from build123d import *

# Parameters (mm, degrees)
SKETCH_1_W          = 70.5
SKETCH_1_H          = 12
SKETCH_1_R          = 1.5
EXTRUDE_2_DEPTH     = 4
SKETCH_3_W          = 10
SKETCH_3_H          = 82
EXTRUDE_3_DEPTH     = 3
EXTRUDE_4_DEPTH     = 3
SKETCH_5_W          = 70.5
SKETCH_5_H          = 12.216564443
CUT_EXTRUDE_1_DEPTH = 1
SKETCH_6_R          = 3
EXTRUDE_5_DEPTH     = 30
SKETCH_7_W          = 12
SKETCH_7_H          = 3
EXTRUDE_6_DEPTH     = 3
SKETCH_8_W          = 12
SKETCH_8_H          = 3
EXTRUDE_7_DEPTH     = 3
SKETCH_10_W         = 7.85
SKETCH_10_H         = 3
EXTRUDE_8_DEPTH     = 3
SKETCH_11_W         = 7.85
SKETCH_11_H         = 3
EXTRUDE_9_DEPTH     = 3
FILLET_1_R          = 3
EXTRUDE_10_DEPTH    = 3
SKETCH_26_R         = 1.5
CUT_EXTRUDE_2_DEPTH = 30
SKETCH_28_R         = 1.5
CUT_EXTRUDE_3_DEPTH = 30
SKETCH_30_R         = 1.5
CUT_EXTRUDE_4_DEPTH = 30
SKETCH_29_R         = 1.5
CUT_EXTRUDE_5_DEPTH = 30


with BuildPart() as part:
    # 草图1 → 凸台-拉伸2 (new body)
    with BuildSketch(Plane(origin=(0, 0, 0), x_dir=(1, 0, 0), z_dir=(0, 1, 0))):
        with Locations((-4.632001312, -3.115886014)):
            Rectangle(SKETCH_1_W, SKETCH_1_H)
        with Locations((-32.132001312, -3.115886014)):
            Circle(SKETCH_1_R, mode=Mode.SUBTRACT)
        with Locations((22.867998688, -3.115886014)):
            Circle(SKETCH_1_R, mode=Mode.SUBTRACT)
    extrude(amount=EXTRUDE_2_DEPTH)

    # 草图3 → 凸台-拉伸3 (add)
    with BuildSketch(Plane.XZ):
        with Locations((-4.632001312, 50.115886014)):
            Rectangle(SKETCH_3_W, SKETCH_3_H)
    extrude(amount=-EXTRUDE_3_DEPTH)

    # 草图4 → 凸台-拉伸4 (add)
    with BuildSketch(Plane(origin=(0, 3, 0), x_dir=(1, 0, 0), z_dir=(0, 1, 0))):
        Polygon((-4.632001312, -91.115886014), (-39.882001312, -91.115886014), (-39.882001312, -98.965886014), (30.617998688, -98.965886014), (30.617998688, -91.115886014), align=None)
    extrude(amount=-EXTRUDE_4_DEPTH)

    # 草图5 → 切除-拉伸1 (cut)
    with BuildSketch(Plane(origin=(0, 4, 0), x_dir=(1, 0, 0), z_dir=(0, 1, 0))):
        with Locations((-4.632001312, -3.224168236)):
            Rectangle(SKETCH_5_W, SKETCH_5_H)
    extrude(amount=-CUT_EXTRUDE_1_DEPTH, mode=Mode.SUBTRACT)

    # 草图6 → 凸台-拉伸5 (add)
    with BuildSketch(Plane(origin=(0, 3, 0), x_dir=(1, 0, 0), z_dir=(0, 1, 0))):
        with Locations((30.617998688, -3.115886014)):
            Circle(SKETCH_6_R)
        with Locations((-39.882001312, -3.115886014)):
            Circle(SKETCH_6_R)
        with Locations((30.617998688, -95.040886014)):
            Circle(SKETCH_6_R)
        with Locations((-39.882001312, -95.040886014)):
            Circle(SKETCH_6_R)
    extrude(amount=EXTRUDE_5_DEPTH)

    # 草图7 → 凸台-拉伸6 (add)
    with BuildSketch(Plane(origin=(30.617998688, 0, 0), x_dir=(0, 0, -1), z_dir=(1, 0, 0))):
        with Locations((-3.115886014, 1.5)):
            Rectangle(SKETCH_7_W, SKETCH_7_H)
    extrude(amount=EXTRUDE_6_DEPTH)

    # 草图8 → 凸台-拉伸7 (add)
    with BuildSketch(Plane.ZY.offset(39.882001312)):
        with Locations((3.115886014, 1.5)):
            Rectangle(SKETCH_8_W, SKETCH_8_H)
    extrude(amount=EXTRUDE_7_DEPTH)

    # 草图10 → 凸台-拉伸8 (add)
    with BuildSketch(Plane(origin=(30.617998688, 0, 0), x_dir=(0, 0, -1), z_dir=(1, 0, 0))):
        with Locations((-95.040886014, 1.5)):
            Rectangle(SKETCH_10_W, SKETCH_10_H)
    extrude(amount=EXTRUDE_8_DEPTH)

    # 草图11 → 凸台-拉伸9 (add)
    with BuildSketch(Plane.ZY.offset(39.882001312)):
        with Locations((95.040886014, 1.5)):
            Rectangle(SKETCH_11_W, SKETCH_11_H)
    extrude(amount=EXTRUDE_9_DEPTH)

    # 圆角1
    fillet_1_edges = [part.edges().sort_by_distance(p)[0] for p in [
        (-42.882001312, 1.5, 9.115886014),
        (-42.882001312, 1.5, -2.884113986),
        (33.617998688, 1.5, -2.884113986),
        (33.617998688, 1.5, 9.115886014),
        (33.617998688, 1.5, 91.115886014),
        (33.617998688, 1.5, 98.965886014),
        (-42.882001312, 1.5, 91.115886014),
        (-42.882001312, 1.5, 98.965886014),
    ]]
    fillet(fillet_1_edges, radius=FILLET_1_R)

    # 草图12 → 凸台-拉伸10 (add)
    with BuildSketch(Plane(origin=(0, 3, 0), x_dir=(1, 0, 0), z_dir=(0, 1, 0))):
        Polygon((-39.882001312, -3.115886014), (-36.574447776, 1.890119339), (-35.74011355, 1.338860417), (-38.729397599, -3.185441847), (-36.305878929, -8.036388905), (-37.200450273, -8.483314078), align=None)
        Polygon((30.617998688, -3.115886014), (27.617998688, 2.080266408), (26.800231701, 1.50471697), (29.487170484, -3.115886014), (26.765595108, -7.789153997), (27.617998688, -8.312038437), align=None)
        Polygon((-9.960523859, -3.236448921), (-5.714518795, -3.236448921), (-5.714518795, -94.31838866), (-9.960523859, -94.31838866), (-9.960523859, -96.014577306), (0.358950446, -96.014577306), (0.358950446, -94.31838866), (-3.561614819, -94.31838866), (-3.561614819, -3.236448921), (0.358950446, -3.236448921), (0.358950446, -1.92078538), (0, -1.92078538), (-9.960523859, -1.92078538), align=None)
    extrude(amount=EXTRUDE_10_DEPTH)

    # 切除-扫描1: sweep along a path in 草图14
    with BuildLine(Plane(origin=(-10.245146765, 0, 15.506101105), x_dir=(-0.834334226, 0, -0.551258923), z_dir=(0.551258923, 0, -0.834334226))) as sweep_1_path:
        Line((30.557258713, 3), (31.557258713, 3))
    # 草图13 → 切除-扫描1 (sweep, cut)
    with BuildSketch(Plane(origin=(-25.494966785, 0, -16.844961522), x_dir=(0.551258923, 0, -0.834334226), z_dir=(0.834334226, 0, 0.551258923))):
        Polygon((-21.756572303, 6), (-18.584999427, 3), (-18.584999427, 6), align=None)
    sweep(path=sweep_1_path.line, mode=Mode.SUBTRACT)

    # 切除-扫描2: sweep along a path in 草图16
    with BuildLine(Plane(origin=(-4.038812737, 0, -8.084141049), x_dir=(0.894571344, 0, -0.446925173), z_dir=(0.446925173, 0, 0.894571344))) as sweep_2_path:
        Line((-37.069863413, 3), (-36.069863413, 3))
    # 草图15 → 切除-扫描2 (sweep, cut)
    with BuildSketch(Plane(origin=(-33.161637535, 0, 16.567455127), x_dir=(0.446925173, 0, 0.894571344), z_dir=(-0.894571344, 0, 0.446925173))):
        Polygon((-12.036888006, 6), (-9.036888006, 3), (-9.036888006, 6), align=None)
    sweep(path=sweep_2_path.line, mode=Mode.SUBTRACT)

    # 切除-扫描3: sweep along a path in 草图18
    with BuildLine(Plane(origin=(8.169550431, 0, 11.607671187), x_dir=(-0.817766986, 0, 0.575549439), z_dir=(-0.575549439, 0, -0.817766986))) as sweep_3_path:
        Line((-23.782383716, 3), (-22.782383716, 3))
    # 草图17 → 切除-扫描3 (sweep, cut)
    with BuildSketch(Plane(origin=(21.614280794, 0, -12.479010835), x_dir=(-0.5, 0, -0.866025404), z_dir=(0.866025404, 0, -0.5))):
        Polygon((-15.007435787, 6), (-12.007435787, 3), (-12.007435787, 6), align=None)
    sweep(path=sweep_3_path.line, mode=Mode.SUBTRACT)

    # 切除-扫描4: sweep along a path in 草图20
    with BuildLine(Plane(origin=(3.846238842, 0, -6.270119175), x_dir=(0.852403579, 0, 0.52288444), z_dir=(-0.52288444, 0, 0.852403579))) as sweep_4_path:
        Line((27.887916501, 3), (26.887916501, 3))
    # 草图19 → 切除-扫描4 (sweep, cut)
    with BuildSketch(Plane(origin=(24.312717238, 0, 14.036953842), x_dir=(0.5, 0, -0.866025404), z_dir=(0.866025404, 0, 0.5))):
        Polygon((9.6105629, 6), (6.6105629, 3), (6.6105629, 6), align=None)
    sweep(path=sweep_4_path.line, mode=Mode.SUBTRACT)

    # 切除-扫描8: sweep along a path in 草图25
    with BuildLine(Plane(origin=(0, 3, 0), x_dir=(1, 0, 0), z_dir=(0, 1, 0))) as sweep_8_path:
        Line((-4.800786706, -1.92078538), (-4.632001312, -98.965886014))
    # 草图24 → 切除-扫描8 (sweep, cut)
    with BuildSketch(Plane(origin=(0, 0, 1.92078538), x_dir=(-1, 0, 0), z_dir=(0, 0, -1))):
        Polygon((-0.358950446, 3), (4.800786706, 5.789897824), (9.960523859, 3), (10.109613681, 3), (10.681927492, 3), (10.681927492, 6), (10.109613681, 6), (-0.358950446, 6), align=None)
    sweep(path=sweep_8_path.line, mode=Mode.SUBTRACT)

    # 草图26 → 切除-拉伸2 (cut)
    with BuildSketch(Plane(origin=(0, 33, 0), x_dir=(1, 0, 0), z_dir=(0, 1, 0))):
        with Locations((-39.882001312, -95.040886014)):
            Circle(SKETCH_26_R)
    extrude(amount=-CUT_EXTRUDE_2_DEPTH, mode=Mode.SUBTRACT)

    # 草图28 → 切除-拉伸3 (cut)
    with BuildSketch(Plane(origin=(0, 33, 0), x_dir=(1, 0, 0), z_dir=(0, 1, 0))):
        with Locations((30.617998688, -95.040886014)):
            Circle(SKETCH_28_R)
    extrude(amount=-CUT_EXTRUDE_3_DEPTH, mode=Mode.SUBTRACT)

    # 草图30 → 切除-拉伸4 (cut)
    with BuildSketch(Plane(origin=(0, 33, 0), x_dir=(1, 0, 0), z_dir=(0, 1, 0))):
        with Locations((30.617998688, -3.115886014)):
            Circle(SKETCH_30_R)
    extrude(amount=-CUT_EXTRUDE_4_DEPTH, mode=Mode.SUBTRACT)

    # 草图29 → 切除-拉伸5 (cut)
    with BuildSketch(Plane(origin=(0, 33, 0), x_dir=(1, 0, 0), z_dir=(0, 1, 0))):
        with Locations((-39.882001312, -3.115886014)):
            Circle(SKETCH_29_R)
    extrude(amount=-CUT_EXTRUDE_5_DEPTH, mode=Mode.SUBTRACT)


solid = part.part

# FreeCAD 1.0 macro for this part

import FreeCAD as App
import Part
import Sketcher
Q = App.Units.Quantity


def edges_at(feature, points):
    """Names of the edges that pass closest to the given points."""
    edges = feature.Shape.Edges
    near = lambda p: min(range(len(edges)), key=lambda i: edges[i].distToShape(Part.Vertex(*p))[0])
    return sorted({f"Edge{near(p) + 1}" for p in points})


def add_polygon(sketch, points):
    """Adds a closed chain of lines whose ends are joined by coincident constraints."""
    first, n = sketch.GeometryCount, len(points)
    for a, b in zip(points, points[1:] + points[:1]):
        sketch.addGeometry(Part.LineSegment(App.Vector(*a, 0), App.Vector(*b, 0)), False)
    for i in range(n):
        sketch.addConstraint(Sketcher.Constraint("Coincident", first + i, 2, first + (i + 1) % n, 1))

doc = App.newDocument("Part")
body = doc.addObject("PartDesign::Body", "Body")

sketch1 = doc.addObject("Sketcher::SketchObject", "Sketch")
body.addObject(sketch1)
sketch1.AttachmentSupport = (doc.XZ_Plane, [""])
sketch1.MapMode = "FlatFace"
add_polygon(sketch1, [(-39.882001, -2.884114), (-39.882001, 9.115886), (30.617999, 9.115886), (30.617999, -2.884114)])
sketch1.addGeometry(Part.Circle(App.Vector(-32.132001, 3.115886, 0), App.Vector(0, 0, 1), 1.5), False)
sketch1.addGeometry(Part.Circle(App.Vector(22.867999, 3.115886, 0), App.Vector(0, 0, 1), 1.5), False)
sketch1.addConstraint(Sketcher.Constraint("Vertical", 0))
sketch1.addConstraint(Sketcher.Constraint("Horizontal", 1))
sketch1.addConstraint(Sketcher.Constraint("Vertical", 2))
sketch1.addConstraint(Sketcher.Constraint("Horizontal", 3))
sketch1.addConstraint(Sketcher.Constraint("Equal", 4, 5))
sketch1.addConstraint(Sketcher.Constraint("Horizontal", 4, 3, 5, 3))
sketch1.addConstraint(Sketcher.Constraint("Diameter", 4, 3.0))
sketch1.addConstraint(Sketcher.Constraint("DistanceY", 0, 1, 0, 2, 12.0))
sketch1.addConstraint(Sketcher.Constraint("DistanceX", 1, 1, 1, 2, 70.5))
sketch1.addConstraint(Sketcher.Constraint("DistanceX", 4, 3, 5, 3, 55.0))
sketch1.addConstraint(Sketcher.Constraint("DistanceY", 4, 3, 0, 2, 6.0))
sketch1.addConstraint(Sketcher.Constraint("DistanceX", 0, 2, 4, 3, 7.75))
sketch1.addConstraint(Sketcher.Constraint("DistanceX", 4, 3, -1, 1, 32.132001))
sketch1.addConstraint(Sketcher.Constraint("DistanceY", -1, 1, 4, 3, 3.115886))
pad1 = doc.addObject("PartDesign::Pad", "Pad")
body.addObject(pad1)
pad1.Profile = sketch1
pad1.Length = 4
pad1.Reversed = True

sketch2 = doc.addObject("Sketcher::SketchObject", "Sketch001")
body.addObject(sketch2)
sketch2.AttachmentSupport = (doc.XZ_Plane, [""])
sketch2.MapMode = "FlatFace"
add_polygon(sketch2, [(-9.632001, 91.115886), (-9.632001, 9.115886), (0.367999, 9.115886), (0.367999, 91.115886)])
sketch2.addConstraint(Sketcher.Constraint("Vertical", 0))
sketch2.addConstraint(Sketcher.Constraint("Horizontal", 1))
sketch2.addConstraint(Sketcher.Constraint("Vertical", 2))
sketch2.addConstraint(Sketcher.Constraint("Horizontal", 3))
sketch2.addConstraint(Sketcher.Constraint("DistanceX", 1, 1, 1, 2, 10.0))
sketch2.addConstraint(Sketcher.Constraint("DistanceY", 0, 2, 0, 1, 82.0))
sketch2.addConstraint(Sketcher.Constraint("DistanceX", 0, 2, -1, 1, 9.632001))
sketch2.addConstraint(Sketcher.Constraint("DistanceY", -1, 1, 0, 2, 9.115886))
pad2 = doc.addObject("PartDesign::Pad", "Pad001")
body.addObject(pad2)
pad2.Profile = sketch2
pad2.Length = 3
pad2.Reversed = True

sketch3 = doc.addObject("Sketcher::SketchObject", "Sketch002")
body.addObject(sketch3)
sketch3.AttachmentSupport = (doc.XZ_Plane, [""])
sketch3.MapMode = "FlatFace"
sketch3.AttachmentOffset = App.Placement(App.Vector(0, 0, -3), App.Rotation())
add_polygon(sketch3, [(-39.882001, 91.115886), (-39.882001, 98.965886), (30.617999, 98.965886), (30.617999, 91.115886)])
sketch3.addConstraint(Sketcher.Constraint("Vertical", 0))
sketch3.addConstraint(Sketcher.Constraint("Horizontal", 1))
sketch3.addConstraint(Sketcher.Constraint("Vertical", 2))
sketch3.addConstraint(Sketcher.Constraint("Horizontal", 3))
sketch3.addConstraint(Sketcher.Constraint("DistanceX", 1, 1, 1, 2, 70.5))
sketch3.addConstraint(Sketcher.Constraint("DistanceY", 0, 1, 0, 2, 7.85))
sketch3.addConstraint(Sketcher.Constraint("DistanceX", 0, 2, -1, 1, 39.882001))
sketch3.addConstraint(Sketcher.Constraint("DistanceY", -1, 1, 0, 2, 98.965886))
pad3 = doc.addObject("PartDesign::Pad", "Pad002")
body.addObject(pad3)
pad3.Profile = sketch3
pad3.Length = 3

sketch4 = doc.addObject("Sketcher::SketchObject", "Sketch003")
body.addObject(sketch4)
sketch4.AttachmentSupport = (doc.XZ_Plane, [""])
sketch4.MapMode = "FlatFace"
sketch4.AttachmentOffset = App.Placement(App.Vector(0, 0, -4), App.Rotation())
add_polygon(sketch4, [(-39.882001, -2.884114), (-39.882001, 9.33245), (30.617999, 9.33245), (30.617999, -2.884114)])
sketch4.addConstraint(Sketcher.Constraint("Vertical", 0))
sketch4.addConstraint(Sketcher.Constraint("Horizontal", 1))
sketch4.addConstraint(Sketcher.Constraint("Vertical", 2))
sketch4.addConstraint(Sketcher.Constraint("Horizontal", 3))
sketch4.addConstraint(Sketcher.Constraint("DistanceX", 1, 1, 1, 2, 70.5))
sketch4.addConstraint(Sketcher.Constraint("DistanceX", 0, 2, -1, 1, 39.882001))
sketch4.addConstraint(Sketcher.Constraint("DistanceY", 0, 1, 0, 2, 12.216564))
sketch4.addConstraint(Sketcher.Constraint("DistanceY", -1, 1, 0, 2, 9.33245))
pocket1 = doc.addObject("PartDesign::Pocket", "Pocket")
body.addObject(pocket1)
pocket1.Profile = sketch4
pocket1.Length = 1
pocket1.Reversed = True

sketch5 = doc.addObject("Sketcher::SketchObject", "Sketch004")
body.addObject(sketch5)
sketch5.AttachmentSupport = (doc.XZ_Plane, [""])
sketch5.MapMode = "FlatFace"
sketch5.AttachmentOffset = App.Placement(App.Vector(0, 0, -3), App.Rotation())
sketch5.addGeometry(Part.Circle(App.Vector(30.617999, 3.115886, 0), App.Vector(0, 0, 1), 3), False)
sketch5.addGeometry(Part.Circle(App.Vector(-39.882001, 3.115886, 0), App.Vector(0, 0, 1), 3), False)
sketch5.addGeometry(Part.Circle(App.Vector(30.617999, 95.040886, 0), App.Vector(0, 0, 1), 3), False)
sketch5.addGeometry(Part.Circle(App.Vector(-39.882001, 95.040886, 0), App.Vector(0, 0, 1), 3), False)
sketch5.addConstraint(Sketcher.Constraint("Equal", 0, 1))
sketch5.addConstraint(Sketcher.Constraint("Equal", 1, 2))
sketch5.addConstraint(Sketcher.Constraint("Equal", 2, 3))
sketch5.addConstraint(Sketcher.Constraint("Horizontal", 0, 3, 1, 3))
sketch5.addConstraint(Sketcher.Constraint("Horizontal", 2, 3, 3, 3))
sketch5.addConstraint(Sketcher.Constraint("Vertical", 0, 3, 2, 3))
sketch5.addConstraint(Sketcher.Constraint("Vertical", 1, 3, 3, 3))
sketch5.addConstraint(Sketcher.Constraint("Diameter", 0, 6.0))
sketch5.addConstraint(Sketcher.Constraint("DistanceX", 1, 3, 0, 3, 70.5))
sketch5.addConstraint(Sketcher.Constraint("DistanceX", -1, 1, 0, 3, 30.617999))
sketch5.addConstraint(Sketcher.Constraint("DistanceY", 0, 3, 2, 3, 91.925))
sketch5.addConstraint(Sketcher.Constraint("DistanceY", -1, 1, 0, 3, 3.115886))
pad4 = doc.addObject("PartDesign::Pad", "Pad003")
body.addObject(pad4)
pad4.Profile = sketch5
pad4.Length = 30
pad4.Reversed = True

sketch6 = doc.addObject("Sketcher::SketchObject", "Sketch005")
body.addObject(sketch6)
sketch6.AttachmentSupport = (doc.YZ_Plane, [""])
sketch6.MapMode = "FlatFace"
sketch6.AttachmentOffset = App.Placement(App.Vector(0, 0, 30.617999), App.Rotation())
add_polygon(sketch6, [(3, 9.115886), (0, 9.115886), (0, -2.884114), (3, -2.884114)])
sketch6.addConstraint(Sketcher.Constraint("Horizontal", 0))
sketch6.addConstraint(Sketcher.Constraint("Vertical", 1))
sketch6.addConstraint(Sketcher.Constraint("Horizontal", 2))
sketch6.addConstraint(Sketcher.Constraint("Vertical", 3))
sketch6.addConstraint(Sketcher.Constraint("PointOnObject", 0, 2, -2))
sketch6.addConstraint(Sketcher.Constraint("DistanceX", 0, 2, 0, 1, 3.0))
sketch6.addConstraint(Sketcher.Constraint("DistanceY", 1, 2, 1, 1, 12.0))
sketch6.addConstraint(Sketcher.Constraint("DistanceY", -1, 1, 0, 2, 9.115886))
pad5 = doc.addObject("PartDesign::Pad", "Pad004")
body.addObject(pad5)
pad5.Profile = sketch6
pad5.Length = 3

sketch7 = doc.addObject("Sketcher::SketchObject", "Sketch006")
body.addObject(sketch7)
sketch7.AttachmentSupport = (doc.YZ_Plane, [""])
sketch7.MapMode = "FlatFace"
sketch7.AttachmentOffset = App.Placement(App.Vector(0, 0, -39.882001), App.Rotation())
add_polygon(sketch7, [(3, -2.884114), (0, -2.884114), (0, 9.115886), (3, 9.115886)])
sketch7.addConstraint(Sketcher.Constraint("Horizontal", 0))
sketch7.addConstraint(Sketcher.Constraint("Vertical", 1))
sketch7.addConstraint(Sketcher.Constraint("Horizontal", 2))
sketch7.addConstraint(Sketcher.Constraint("Vertical", 3))
sketch7.addConstraint(Sketcher.Constraint("PointOnObject", 0, 2, -2))
sketch7.addConstraint(Sketcher.Constraint("DistanceX", 0, 2, 0, 1, 3.0))
sketch7.addConstraint(Sketcher.Constraint("DistanceY", 1, 1, 1, 2, 12.0))
sketch7.addConstraint(Sketcher.Constraint("DistanceY", 0, 2, -1, 1, 2.884114))
pad6 = doc.addObject("PartDesign::Pad", "Pad005")
body.addObject(pad6)
pad6.Profile = sketch7
pad6.Length = 3
pad6.Reversed = True

sketch8 = doc.addObject("Sketcher::SketchObject", "Sketch007")
body.addObject(sketch8)
sketch8.AttachmentSupport = (doc.YZ_Plane, [""])
sketch8.MapMode = "FlatFace"
sketch8.AttachmentOffset = App.Placement(App.Vector(0, 0, 30.617999), App.Rotation())
add_polygon(sketch8, [(3, 98.965886), (0, 98.965886), (0, 91.115886), (3, 91.115886)])
sketch8.addConstraint(Sketcher.Constraint("Horizontal", 0))
sketch8.addConstraint(Sketcher.Constraint("Vertical", 1))
sketch8.addConstraint(Sketcher.Constraint("Horizontal", 2))
sketch8.addConstraint(Sketcher.Constraint("Vertical", 3))
sketch8.addConstraint(Sketcher.Constraint("PointOnObject", 0, 2, -2))
sketch8.addConstraint(Sketcher.Constraint("DistanceX", 0, 2, 0, 1, 3.0))
sketch8.addConstraint(Sketcher.Constraint("DistanceY", 1, 2, 1, 1, 7.85))
sketch8.addConstraint(Sketcher.Constraint("DistanceY", -1, 1, 0, 2, 98.965886))
pad7 = doc.addObject("PartDesign::Pad", "Pad006")
body.addObject(pad7)
pad7.Profile = sketch8
pad7.Length = 3

sketch9 = doc.addObject("Sketcher::SketchObject", "Sketch008")
body.addObject(sketch9)
sketch9.AttachmentSupport = (doc.YZ_Plane, [""])
sketch9.MapMode = "FlatFace"
sketch9.AttachmentOffset = App.Placement(App.Vector(0, 0, -39.882001), App.Rotation())
add_polygon(sketch9, [(3, 91.115886), (0, 91.115886), (0, 98.965886), (3, 98.965886)])
sketch9.addConstraint(Sketcher.Constraint("Horizontal", 0))
sketch9.addConstraint(Sketcher.Constraint("Vertical", 1))
sketch9.addConstraint(Sketcher.Constraint("Horizontal", 2))
sketch9.addConstraint(Sketcher.Constraint("Vertical", 3))
sketch9.addConstraint(Sketcher.Constraint("PointOnObject", 0, 2, -2))
sketch9.addConstraint(Sketcher.Constraint("DistanceX", 0, 2, 0, 1, 3.0))
sketch9.addConstraint(Sketcher.Constraint("DistanceY", 1, 1, 1, 2, 7.85))
sketch9.addConstraint(Sketcher.Constraint("DistanceY", -1, 1, 0, 2, 91.115886))
pad8 = doc.addObject("PartDesign::Pad", "Pad007")
body.addObject(pad8)
pad8.Profile = sketch9
pad8.Length = 3
pad8.Reversed = True
doc.recompute()

fillet = doc.addObject("PartDesign::Fillet", "Fillet")
body.addObject(fillet)
fillet.Base = (pad8, edges_at(pad8, [
    (-42.882, 1.5, 9.116),
    (-42.882, 1.5, -2.884),
    (33.618, 1.5, -2.884),
    (33.618, 1.5, 9.116),
    (33.618, 1.5, 91.116),
    (33.618, 1.5, 98.966),
    (-42.882, 1.5, 91.116),
    (-42.882, 1.5, 98.966),
]))
fillet.Radius = 3

sketch10 = doc.addObject("Sketcher::SketchObject", "Sketch009")
body.addObject(sketch10)
sketch10.AttachmentSupport = (doc.XZ_Plane, [""])
sketch10.MapMode = "FlatFace"
sketch10.AttachmentOffset = App.Placement(App.Vector(0, 0, -3), App.Rotation())
add_polygon(sketch10, [(-36.574448, -1.890119), (-39.882001, 3.115886), (-37.20045, 8.483314), (-36.305879, 8.036389), (-38.729398, 3.185442), (-35.740114, -1.33886)])
add_polygon(sketch10, [(30.617999, 3.115886), (27.617999, -2.080266), (26.800232, -1.504717), (29.48717, 3.115886), (26.765595, 7.789154), (27.617999, 8.312038)])
add_polygon(sketch10, [(-9.960524, 3.236449), (-5.714519, 3.236449), (-5.714519, 94.318389), (-9.960524, 94.318389), (-9.960524, 96.014577), (0.35895, 96.014577), (0.35895, 94.318389), (-3.561615, 94.318389), (-3.561615, 3.236449), (0.35895, 3.236449), (0.35895, 1.920785), (-9.960524, 1.920785)])
sketch10.addConstraint(Sketcher.Constraint("Horizontal", 12))
sketch10.addConstraint(Sketcher.Constraint("Vertical", 13))
sketch10.addConstraint(Sketcher.Constraint("Horizontal", 14))
sketch10.addConstraint(Sketcher.Constraint("Vertical", 15))
sketch10.addConstraint(Sketcher.Constraint("Horizontal", 16))
sketch10.addConstraint(Sketcher.Constraint("Vertical", 17))
sketch10.addConstraint(Sketcher.Constraint("Horizontal", 18))
sketch10.addConstraint(Sketcher.Constraint("Vertical", 19))
sketch10.addConstraint(Sketcher.Constraint("Horizontal", 20))
sketch10.addConstraint(Sketcher.Constraint("Vertical", 21))
sketch10.addConstraint(Sketcher.Constraint("Horizontal", 22))
sketch10.addConstraint(Sketcher.Constraint("Vertical", 23))
sketch10.addConstraint(Sketcher.Constraint("Perpendicular", 1, 2))
sketch10.addConstraint(Sketcher.Constraint("Perpendicular", 2, 3))
sketch10.addConstraint(Sketcher.Constraint("Parallel", 0, 4))
sketch10.addConstraint(Sketcher.Constraint("Perpendicular", 4, 5))
sketch10.addConstraint(Sketcher.Constraint("Horizontal", 0, 2, 8, 2))
sketch10.addConstraint(Sketcher.Constraint("Horizontal", 8, 2, 11, 2))
sketch10.addConstraint(Sketcher.Constraint("Horizontal", 14, 2, 17, 2))
sketch10.addConstraint(Sketcher.Constraint("Horizontal", 12, 2, 19, 2))
sketch10.addConstraint(Sketcher.Constraint("Vertical", 6, 2, 10, 2))
sketch10.addConstraint(Sketcher.Constraint("Vertical", 17, 2, 20, 2))
sketch10.addConstraint(Sketcher.Constraint("Vertical", 15, 2, 22, 2))
sketch10.addConstraint(Sketcher.Constraint("Equal", 0, 1))
sketch10.addConstraint(Sketcher.Constraint("Equal", 3, 4))
sketch10.addConstraint(Sketcher.Constraint("Equal", 1, 6))
sketch10.addConstraint(Sketcher.Constraint("Equal", 5, 7))
sketch10.addConstraint(Sketcher.Constraint("Equal", 7, 10))
sketch10.addConstraint(Sketcher.Constraint("Equal", 6, 11))
sketch10.addConstraint(Sketcher.Constraint("Angle", 6, Q("-120 deg")))
sketch10.addConstraint(Sketcher.Constraint("Distance", 0, 6.0))
sketch10.addConstraint(Sketcher.Constraint("Distance", 2, 1.0))
sketch10.addConstraint(Sketcher.Constraint("DistanceX", 0, 2, -1, 1, 39.882001))
sketch10.addConstraint(Sketcher.Constraint("DistanceX", -1, 1, 6, 2, 27.617999))
sketch10.addConstraint(Sketcher.Constraint("DistanceY", 2, 2, 13, 2, 86.282))
sketch10.addConstraint(Sketcher.Constraint("DistanceY", 13, 1, 13, 2, 91.08194))
sketch10.addConstraint(Sketcher.Constraint("DistanceY", 15, 1, 15, 2, 1.696189))
sketch10.addConstraint(Sketcher.Constraint("Distance", 3, 5.42265))
sketch10.addConstraint(Sketcher.Constraint("DistanceX", 12, 1, 12, 2, 4.246005))
sketch10.addConstraint(Sketcher.Constraint("DistanceX", 16, 1, 16, 2, 10.319474))
sketch10.addConstraint(Sketcher.Constraint("DistanceX", 18, 2, 18, 1, 3.920565))
sketch10.addConstraint(Sketcher.Constraint("DistanceY", 21, 2, 21, 1, 1.315664))
sketch10.addConstraint(Sketcher.Constraint("DistanceX", 1, 2, -1, 1, 37.20045))
sketch10.addConstraint(Sketcher.Constraint("DistanceY", -1, 1, 2, 2, 8.036389))
sketch10.addConstraint(Sketcher.Constraint("DistanceX", -1, 1, 7, 2, 26.800232))
sketch10.addConstraint(Sketcher.Constraint("DistanceX", -1, 1, 8, 2, 29.48717))
sketch10.addConstraint(Sketcher.Constraint("DistanceX", 12, 2, -1, 1, 5.714519))
sketch10.addConstraint(Sketcher.Constraint("DistanceY", 7, 2, 9, 2, 9.293871))
pad9 = doc.addObject("PartDesign::Pad", "Pad008")
body.addObject(pad9)
pad9.Profile = sketch10
pad9.Length = 3
pad9.Reversed = True

sketch11 = doc.addObject("Sketcher::SketchObject", "Sketch010")
body.addObject(sketch11)
sketch11.Placement = App.Placement(App.Vector(-25.494967, 0, -16.844962), App.Rotation(App.Vector(0.551258923, 0, -0.834334226), App.Vector(0, 1.000000001, 0), App.Vector(0.834334226, 0, 0.551258923), "ZXY"))
add_polygon(sketch11, [(-21.756572, 6), (-18.584999, 3), (-18.584999, 6)])
sketch11.addConstraint(Sketcher.Constraint("Vertical", 1))
sketch11.addConstraint(Sketcher.Constraint("Horizontal", 2))
sketch11.addConstraint(Sketcher.Constraint("DistanceY", 1, 1, 1, 2, 3.0))
sketch11.addConstraint(Sketcher.Constraint("DistanceY", -1, 1, 0, 2, 3.0))
sketch11.addConstraint(Sketcher.Constraint("DistanceX", 0, 2, -1, 1, 18.584999))
sketch11.addConstraint(Sketcher.Constraint("DistanceX", 2, 2, 2, 1, 3.171573))

sketch12 = doc.addObject("Sketcher::SketchObject", "Sketch011")
body.addObject(sketch12)
sketch12.Placement = App.Placement(App.Vector(-10.245147, 0, 15.506101), App.Rotation(App.Vector(-0.834334226, 0, -0.551258923), App.Vector(0, 1.000000001, 0), App.Vector(0.551258923, 0, -0.834334226), "ZXY"))
sketch12.addGeometry(Part.LineSegment(App.Vector(30.557259, 3, 0), App.Vector(31.557259, 3, 0)), False)
sketch12.addConstraint(Sketcher.Constraint("Horizontal", 0))
sketch12.addConstraint(Sketcher.Constraint("DistanceX", 0, 1, 0, 2, 1.0))
sketch12.addConstraint(Sketcher.Constraint("DistanceY", -1, 1, 0, 1, 3.0))
sketch12.addConstraint(Sketcher.Constraint("DistanceX", -1, 1, 0, 1, 30.557259))
doc.recompute()

subtractivepipe = doc.addObject("PartDesign::SubtractivePipe", "SubtractivePipe")
body.addObject(subtractivepipe)
subtractivepipe.Profile = sketch11
subtractivepipe.Spine = (sketch12, ["Edge1"])

sketch13 = doc.addObject("Sketcher::SketchObject", "Sketch012")
body.addObject(sketch13)
sketch13.Placement = App.Placement(App.Vector(-33.161638, 0, 16.567455), App.Rotation(App.Vector(0.446925173, 0, 0.894571344), App.Vector(0, 1, 0), App.Vector(-0.894571344, 0, 0.446925173), "ZXY"))
add_polygon(sketch13, [(-12.036888, 6), (-9.036888, 3), (-9.036888, 6)])
sketch13.addConstraint(Sketcher.Constraint("Vertical", 1))
sketch13.addConstraint(Sketcher.Constraint("Horizontal", 2))
sketch13.addConstraint(Sketcher.Constraint("Equal", 2, 1))
sketch13.addConstraint(Sketcher.Constraint("DistanceX", 2, 2, 2, 1, 3.0))
sketch13.addConstraint(Sketcher.Constraint("DistanceY", -1, 1, 0, 2, 3.0))
sketch13.addConstraint(Sketcher.Constraint("DistanceX", 0, 2, -1, 1, 9.036888))

sketch14 = doc.addObject("Sketcher::SketchObject", "Sketch013")
body.addObject(sketch14)
sketch14.Placement = App.Placement(App.Vector(-4.038813, 0, -8.084141), App.Rotation(App.Vector(0.894571344, 0, -0.446925173), App.Vector(0, 1, 0), App.Vector(0.446925173, 0, 0.894571344), "ZXY"))
sketch14.addGeometry(Part.LineSegment(App.Vector(-37.069863, 3, 0), App.Vector(-36.069863, 3, 0)), False)
sketch14.addConstraint(Sketcher.Constraint("Horizontal", 0))
sketch14.addConstraint(Sketcher.Constraint("DistanceX", 0, 1, 0, 2, 1.0))
sketch14.addConstraint(Sketcher.Constraint("DistanceY", -1, 1, 0, 1, 3.0))
sketch14.addConstraint(Sketcher.Constraint("DistanceX", 0, 1, -1, 1, 37.069863))
doc.recompute()

subtractivepipe2 = doc.addObject("PartDesign::SubtractivePipe", "SubtractivePipe001")
body.addObject(subtractivepipe2)
subtractivepipe2.Profile = sketch13
subtractivepipe2.Spine = (sketch14, ["Edge1"])

sketch15 = doc.addObject("Sketcher::SketchObject", "Sketch014")
body.addObject(sketch15)
sketch15.Placement = App.Placement(App.Vector(21.614281, 0, -12.479011), App.Rotation(App.Vector(-0.5, 0, -0.866025404), App.Vector(0, 1, 0), App.Vector(0.866025404, 0, -0.5), "ZXY"))
add_polygon(sketch15, [(-15.007436, 6), (-12.007436, 3), (-12.007436, 6)])
sketch15.addConstraint(Sketcher.Constraint("Vertical", 1))
sketch15.addConstraint(Sketcher.Constraint("Horizontal", 2))
sketch15.addConstraint(Sketcher.Constraint("Equal", 2, 1))
sketch15.addConstraint(Sketcher.Constraint("DistanceX", 2, 2, 2, 1, 3.0))
sketch15.addConstraint(Sketcher.Constraint("DistanceY", -1, 1, 0, 2, 3.0))
sketch15.addConstraint(Sketcher.Constraint("DistanceX", 0, 2, -1, 1, 12.007436))

sketch16 = doc.addObject("Sketcher::SketchObject", "Sketch015")
body.addObject(sketch16)
sketch16.Placement = App.Placement(App.Vector(8.16955, 0, 11.607671), App.Rotation(App.Vector(-0.817766986, 0, 0.575549439), App.Vector(0, 1, 0), App.Vector(-0.575549439, 0, -0.817766986), "ZXY"))
sketch16.addGeometry(Part.LineSegment(App.Vector(-23.782384, 3, 0), App.Vector(-22.782384, 3, 0)), False)
sketch16.addConstraint(Sketcher.Constraint("Horizontal", 0))
sketch16.addConstraint(Sketcher.Constraint("DistanceX", 0, 1, 0, 2, 1.0))
sketch16.addConstraint(Sketcher.Constraint("DistanceY", -1, 1, 0, 1, 3.0))
sketch16.addConstraint(Sketcher.Constraint("DistanceX", 0, 1, -1, 1, 23.782384))
doc.recompute()

subtractivepipe3 = doc.addObject("PartDesign::SubtractivePipe", "SubtractivePipe002")
body.addObject(subtractivepipe3)
subtractivepipe3.Profile = sketch15
subtractivepipe3.Spine = (sketch16, ["Edge1"])

sketch17 = doc.addObject("Sketcher::SketchObject", "Sketch016")
body.addObject(sketch17)
sketch17.Placement = App.Placement(App.Vector(24.312717, 0, 14.036954), App.Rotation(App.Vector(0.5, 0, -0.866025404), App.Vector(0, 1, 0), App.Vector(0.866025404, 0, 0.5), "ZXY"))
add_polygon(sketch17, [(6.610563, 3), (9.610563, 6), (6.610563, 6)])
sketch17.addConstraint(Sketcher.Constraint("Horizontal", 1))
sketch17.addConstraint(Sketcher.Constraint("Vertical", 2))
sketch17.addConstraint(Sketcher.Constraint("Equal", 1, 2))
sketch17.addConstraint(Sketcher.Constraint("DistanceX", 1, 2, 1, 1, 3.0))
sketch17.addConstraint(Sketcher.Constraint("DistanceY", -1, 1, 0, 2, 6.0))
sketch17.addConstraint(Sketcher.Constraint("DistanceX", -1, 1, 0, 2, 9.610563))

sketch18 = doc.addObject("Sketcher::SketchObject", "Sketch017")
body.addObject(sketch18)
sketch18.Placement = App.Placement(App.Vector(3.846239, 0, -6.270119), App.Rotation(App.Vector(-0.852403579, 0, -0.52288444), App.Vector(0, 0.999999999, 0), App.Vector(0.52288444, 0, -0.852403579), "ZXY"))
sketch18.addGeometry(Part.LineSegment(App.Vector(-27.887916, 3, 0), App.Vector(-26.887916, 3, 0)), False)
sketch18.addConstraint(Sketcher.Constraint("Horizontal", 0))
sketch18.addConstraint(Sketcher.Constraint("DistanceX", 0, 1, 0, 2, 1.0))
sketch18.addConstraint(Sketcher.Constraint("DistanceY", -1, 1, 0, 1, 3.0))
sketch18.addConstraint(Sketcher.Constraint("DistanceX", 0, 1, -1, 1, 27.887916))
doc.recompute()

subtractivepipe4 = doc.addObject("PartDesign::SubtractivePipe", "SubtractivePipe003")
body.addObject(subtractivepipe4)
subtractivepipe4.Profile = sketch17
subtractivepipe4.Spine = (sketch18, ["Edge1"])

sketch19 = doc.addObject("Sketcher::SketchObject", "Sketch018")
body.addObject(sketch19)
sketch19.AttachmentSupport = (doc.XY_Plane, [""])
sketch19.MapMode = "FlatFace"
sketch19.AttachmentOffset = App.Placement(App.Vector(0, 0, 1.920785), App.Rotation())
add_polygon(sketch19, [(0.35895, 3), (-4.800787, 5.789898), (-9.960524, 3), (-10.681927, 3), (-10.681927, 6), (0.35895, 6)])
sketch19.addConstraint(Sketcher.Constraint("Horizontal", 2))
sketch19.addConstraint(Sketcher.Constraint("Vertical", 3))
sketch19.addConstraint(Sketcher.Constraint("Horizontal", 4))
sketch19.addConstraint(Sketcher.Constraint("Vertical", 5))
sketch19.addConstraint(Sketcher.Constraint("Horizontal", 2, 2, 5, 2))
sketch19.addConstraint(Sketcher.Constraint("Equal", 0, 1))
sketch19.addConstraint(Sketcher.Constraint("DistanceY", 3, 1, 3, 2, 3.0))
sketch19.addConstraint(Sketcher.Constraint("DistanceY", -1, 1, 1, 2, 3.0))
sketch19.addConstraint(Sketcher.Constraint("Distance", 0, 5.865698))
sketch19.addConstraint(Sketcher.Constraint("DistanceX", 2, 2, 2, 1, 0.721404))
sketch19.addConstraint(Sketcher.Constraint("DistanceX", 4, 1, 4, 2, 11.040878))
sketch19.addConstraint(Sketcher.Constraint("DistanceX", -1, 1, 4, 2, 0.35895))

sketch20 = doc.addObject("Sketcher::SketchObject", "Sketch019")
body.addObject(sketch20)
sketch20.Placement = App.Placement(App.Vector(-4.804113, 0, 0.008356), App.Rotation(App.Vector(0.001739244, 0, 0.999998488), App.Vector(0, 1.000000001, 0), App.Vector(-0.999998488, 0, 0.001739244), "ZXY"))
sketch20.addGeometry(Part.LineSegment(App.Vector(1.912433, 3, 0), App.Vector(98.95768, 3, 0)), False)
sketch20.addConstraint(Sketcher.Constraint("Horizontal", 0))
sketch20.addConstraint(Sketcher.Constraint("DistanceY", -1, 1, 0, 1, 3.0))
sketch20.addConstraint(Sketcher.Constraint("DistanceX", 0, 1, 0, 2, 97.045248))
sketch20.addConstraint(Sketcher.Constraint("DistanceX", -1, 1, 0, 2, 98.95768))
doc.recompute()

subtractivepipe5 = doc.addObject("PartDesign::SubtractivePipe", "SubtractivePipe004")
body.addObject(subtractivepipe5)
subtractivepipe5.Profile = sketch19
subtractivepipe5.Spine = (sketch20, ["Edge1"])

sketch21 = doc.addObject("Sketcher::SketchObject", "Sketch020")
body.addObject(sketch21)
sketch21.AttachmentSupport = (doc.XZ_Plane, [""])
sketch21.MapMode = "FlatFace"
sketch21.AttachmentOffset = App.Placement(App.Vector(0, 0, -33), App.Rotation())
sketch21.addGeometry(Part.Circle(App.Vector(-39.882001, 95.040886, 0), App.Vector(0, 0, 1), 1.5), False)
sketch21.addConstraint(Sketcher.Constraint("Diameter", 0, 3.0))
sketch21.addConstraint(Sketcher.Constraint("DistanceX", 0, 3, -1, 1, 39.882001))
sketch21.addConstraint(Sketcher.Constraint("DistanceY", -1, 1, 0, 3, 95.040886))
pocket2 = doc.addObject("PartDesign::Pocket", "Pocket001")
body.addObject(pocket2)
pocket2.Profile = sketch21
pocket2.Length = 30
pocket2.Reversed = True

sketch22 = doc.addObject("Sketcher::SketchObject", "Sketch021")
body.addObject(sketch22)
sketch22.AttachmentSupport = (doc.XZ_Plane, [""])
sketch22.MapMode = "FlatFace"
sketch22.AttachmentOffset = App.Placement(App.Vector(0, 0, -33), App.Rotation())
sketch22.addGeometry(Part.Circle(App.Vector(30.617999, 95.040886, 0), App.Vector(0, 0, 1), 1.5), False)
sketch22.addConstraint(Sketcher.Constraint("Diameter", 0, 3.0))
sketch22.addConstraint(Sketcher.Constraint("DistanceX", -1, 1, 0, 3, 30.617999))
sketch22.addConstraint(Sketcher.Constraint("DistanceY", -1, 1, 0, 3, 95.040886))
pocket3 = doc.addObject("PartDesign::Pocket", "Pocket002")
body.addObject(pocket3)
pocket3.Profile = sketch22
pocket3.Length = 30
pocket3.Reversed = True

sketch23 = doc.addObject("Sketcher::SketchObject", "Sketch022")
body.addObject(sketch23)
sketch23.AttachmentSupport = (doc.XZ_Plane, [""])
sketch23.MapMode = "FlatFace"
sketch23.AttachmentOffset = App.Placement(App.Vector(0, 0, -33), App.Rotation())
sketch23.addGeometry(Part.Circle(App.Vector(30.617999, 3.115886, 0), App.Vector(0, 0, 1), 1.5), False)
sketch23.addConstraint(Sketcher.Constraint("Diameter", 0, 3.0))
sketch23.addConstraint(Sketcher.Constraint("DistanceX", -1, 1, 0, 3, 30.617999))
sketch23.addConstraint(Sketcher.Constraint("DistanceY", -1, 1, 0, 3, 3.115886))
pocket4 = doc.addObject("PartDesign::Pocket", "Pocket003")
body.addObject(pocket4)
pocket4.Profile = sketch23
pocket4.Length = 30
pocket4.Reversed = True

sketch24 = doc.addObject("Sketcher::SketchObject", "Sketch023")
body.addObject(sketch24)
sketch24.AttachmentSupport = (doc.XZ_Plane, [""])
sketch24.MapMode = "FlatFace"
sketch24.AttachmentOffset = App.Placement(App.Vector(0, 0, -33), App.Rotation())
sketch24.addGeometry(Part.Circle(App.Vector(-39.882001, 3.115886, 0), App.Vector(0, 0, 1), 1.5), False)
sketch24.addConstraint(Sketcher.Constraint("Diameter", 0, 3.0))
sketch24.addConstraint(Sketcher.Constraint("DistanceX", 0, 3, -1, 1, 39.882001))
sketch24.addConstraint(Sketcher.Constraint("DistanceY", -1, 1, 0, 3, 3.115886))
pocket5 = doc.addObject("PartDesign::Pocket", "Pocket004")
body.addObject(pocket5)
pocket5.Profile = sketch24
pocket5.Length = 30
pocket5.Reversed = True

doc.recompute()
